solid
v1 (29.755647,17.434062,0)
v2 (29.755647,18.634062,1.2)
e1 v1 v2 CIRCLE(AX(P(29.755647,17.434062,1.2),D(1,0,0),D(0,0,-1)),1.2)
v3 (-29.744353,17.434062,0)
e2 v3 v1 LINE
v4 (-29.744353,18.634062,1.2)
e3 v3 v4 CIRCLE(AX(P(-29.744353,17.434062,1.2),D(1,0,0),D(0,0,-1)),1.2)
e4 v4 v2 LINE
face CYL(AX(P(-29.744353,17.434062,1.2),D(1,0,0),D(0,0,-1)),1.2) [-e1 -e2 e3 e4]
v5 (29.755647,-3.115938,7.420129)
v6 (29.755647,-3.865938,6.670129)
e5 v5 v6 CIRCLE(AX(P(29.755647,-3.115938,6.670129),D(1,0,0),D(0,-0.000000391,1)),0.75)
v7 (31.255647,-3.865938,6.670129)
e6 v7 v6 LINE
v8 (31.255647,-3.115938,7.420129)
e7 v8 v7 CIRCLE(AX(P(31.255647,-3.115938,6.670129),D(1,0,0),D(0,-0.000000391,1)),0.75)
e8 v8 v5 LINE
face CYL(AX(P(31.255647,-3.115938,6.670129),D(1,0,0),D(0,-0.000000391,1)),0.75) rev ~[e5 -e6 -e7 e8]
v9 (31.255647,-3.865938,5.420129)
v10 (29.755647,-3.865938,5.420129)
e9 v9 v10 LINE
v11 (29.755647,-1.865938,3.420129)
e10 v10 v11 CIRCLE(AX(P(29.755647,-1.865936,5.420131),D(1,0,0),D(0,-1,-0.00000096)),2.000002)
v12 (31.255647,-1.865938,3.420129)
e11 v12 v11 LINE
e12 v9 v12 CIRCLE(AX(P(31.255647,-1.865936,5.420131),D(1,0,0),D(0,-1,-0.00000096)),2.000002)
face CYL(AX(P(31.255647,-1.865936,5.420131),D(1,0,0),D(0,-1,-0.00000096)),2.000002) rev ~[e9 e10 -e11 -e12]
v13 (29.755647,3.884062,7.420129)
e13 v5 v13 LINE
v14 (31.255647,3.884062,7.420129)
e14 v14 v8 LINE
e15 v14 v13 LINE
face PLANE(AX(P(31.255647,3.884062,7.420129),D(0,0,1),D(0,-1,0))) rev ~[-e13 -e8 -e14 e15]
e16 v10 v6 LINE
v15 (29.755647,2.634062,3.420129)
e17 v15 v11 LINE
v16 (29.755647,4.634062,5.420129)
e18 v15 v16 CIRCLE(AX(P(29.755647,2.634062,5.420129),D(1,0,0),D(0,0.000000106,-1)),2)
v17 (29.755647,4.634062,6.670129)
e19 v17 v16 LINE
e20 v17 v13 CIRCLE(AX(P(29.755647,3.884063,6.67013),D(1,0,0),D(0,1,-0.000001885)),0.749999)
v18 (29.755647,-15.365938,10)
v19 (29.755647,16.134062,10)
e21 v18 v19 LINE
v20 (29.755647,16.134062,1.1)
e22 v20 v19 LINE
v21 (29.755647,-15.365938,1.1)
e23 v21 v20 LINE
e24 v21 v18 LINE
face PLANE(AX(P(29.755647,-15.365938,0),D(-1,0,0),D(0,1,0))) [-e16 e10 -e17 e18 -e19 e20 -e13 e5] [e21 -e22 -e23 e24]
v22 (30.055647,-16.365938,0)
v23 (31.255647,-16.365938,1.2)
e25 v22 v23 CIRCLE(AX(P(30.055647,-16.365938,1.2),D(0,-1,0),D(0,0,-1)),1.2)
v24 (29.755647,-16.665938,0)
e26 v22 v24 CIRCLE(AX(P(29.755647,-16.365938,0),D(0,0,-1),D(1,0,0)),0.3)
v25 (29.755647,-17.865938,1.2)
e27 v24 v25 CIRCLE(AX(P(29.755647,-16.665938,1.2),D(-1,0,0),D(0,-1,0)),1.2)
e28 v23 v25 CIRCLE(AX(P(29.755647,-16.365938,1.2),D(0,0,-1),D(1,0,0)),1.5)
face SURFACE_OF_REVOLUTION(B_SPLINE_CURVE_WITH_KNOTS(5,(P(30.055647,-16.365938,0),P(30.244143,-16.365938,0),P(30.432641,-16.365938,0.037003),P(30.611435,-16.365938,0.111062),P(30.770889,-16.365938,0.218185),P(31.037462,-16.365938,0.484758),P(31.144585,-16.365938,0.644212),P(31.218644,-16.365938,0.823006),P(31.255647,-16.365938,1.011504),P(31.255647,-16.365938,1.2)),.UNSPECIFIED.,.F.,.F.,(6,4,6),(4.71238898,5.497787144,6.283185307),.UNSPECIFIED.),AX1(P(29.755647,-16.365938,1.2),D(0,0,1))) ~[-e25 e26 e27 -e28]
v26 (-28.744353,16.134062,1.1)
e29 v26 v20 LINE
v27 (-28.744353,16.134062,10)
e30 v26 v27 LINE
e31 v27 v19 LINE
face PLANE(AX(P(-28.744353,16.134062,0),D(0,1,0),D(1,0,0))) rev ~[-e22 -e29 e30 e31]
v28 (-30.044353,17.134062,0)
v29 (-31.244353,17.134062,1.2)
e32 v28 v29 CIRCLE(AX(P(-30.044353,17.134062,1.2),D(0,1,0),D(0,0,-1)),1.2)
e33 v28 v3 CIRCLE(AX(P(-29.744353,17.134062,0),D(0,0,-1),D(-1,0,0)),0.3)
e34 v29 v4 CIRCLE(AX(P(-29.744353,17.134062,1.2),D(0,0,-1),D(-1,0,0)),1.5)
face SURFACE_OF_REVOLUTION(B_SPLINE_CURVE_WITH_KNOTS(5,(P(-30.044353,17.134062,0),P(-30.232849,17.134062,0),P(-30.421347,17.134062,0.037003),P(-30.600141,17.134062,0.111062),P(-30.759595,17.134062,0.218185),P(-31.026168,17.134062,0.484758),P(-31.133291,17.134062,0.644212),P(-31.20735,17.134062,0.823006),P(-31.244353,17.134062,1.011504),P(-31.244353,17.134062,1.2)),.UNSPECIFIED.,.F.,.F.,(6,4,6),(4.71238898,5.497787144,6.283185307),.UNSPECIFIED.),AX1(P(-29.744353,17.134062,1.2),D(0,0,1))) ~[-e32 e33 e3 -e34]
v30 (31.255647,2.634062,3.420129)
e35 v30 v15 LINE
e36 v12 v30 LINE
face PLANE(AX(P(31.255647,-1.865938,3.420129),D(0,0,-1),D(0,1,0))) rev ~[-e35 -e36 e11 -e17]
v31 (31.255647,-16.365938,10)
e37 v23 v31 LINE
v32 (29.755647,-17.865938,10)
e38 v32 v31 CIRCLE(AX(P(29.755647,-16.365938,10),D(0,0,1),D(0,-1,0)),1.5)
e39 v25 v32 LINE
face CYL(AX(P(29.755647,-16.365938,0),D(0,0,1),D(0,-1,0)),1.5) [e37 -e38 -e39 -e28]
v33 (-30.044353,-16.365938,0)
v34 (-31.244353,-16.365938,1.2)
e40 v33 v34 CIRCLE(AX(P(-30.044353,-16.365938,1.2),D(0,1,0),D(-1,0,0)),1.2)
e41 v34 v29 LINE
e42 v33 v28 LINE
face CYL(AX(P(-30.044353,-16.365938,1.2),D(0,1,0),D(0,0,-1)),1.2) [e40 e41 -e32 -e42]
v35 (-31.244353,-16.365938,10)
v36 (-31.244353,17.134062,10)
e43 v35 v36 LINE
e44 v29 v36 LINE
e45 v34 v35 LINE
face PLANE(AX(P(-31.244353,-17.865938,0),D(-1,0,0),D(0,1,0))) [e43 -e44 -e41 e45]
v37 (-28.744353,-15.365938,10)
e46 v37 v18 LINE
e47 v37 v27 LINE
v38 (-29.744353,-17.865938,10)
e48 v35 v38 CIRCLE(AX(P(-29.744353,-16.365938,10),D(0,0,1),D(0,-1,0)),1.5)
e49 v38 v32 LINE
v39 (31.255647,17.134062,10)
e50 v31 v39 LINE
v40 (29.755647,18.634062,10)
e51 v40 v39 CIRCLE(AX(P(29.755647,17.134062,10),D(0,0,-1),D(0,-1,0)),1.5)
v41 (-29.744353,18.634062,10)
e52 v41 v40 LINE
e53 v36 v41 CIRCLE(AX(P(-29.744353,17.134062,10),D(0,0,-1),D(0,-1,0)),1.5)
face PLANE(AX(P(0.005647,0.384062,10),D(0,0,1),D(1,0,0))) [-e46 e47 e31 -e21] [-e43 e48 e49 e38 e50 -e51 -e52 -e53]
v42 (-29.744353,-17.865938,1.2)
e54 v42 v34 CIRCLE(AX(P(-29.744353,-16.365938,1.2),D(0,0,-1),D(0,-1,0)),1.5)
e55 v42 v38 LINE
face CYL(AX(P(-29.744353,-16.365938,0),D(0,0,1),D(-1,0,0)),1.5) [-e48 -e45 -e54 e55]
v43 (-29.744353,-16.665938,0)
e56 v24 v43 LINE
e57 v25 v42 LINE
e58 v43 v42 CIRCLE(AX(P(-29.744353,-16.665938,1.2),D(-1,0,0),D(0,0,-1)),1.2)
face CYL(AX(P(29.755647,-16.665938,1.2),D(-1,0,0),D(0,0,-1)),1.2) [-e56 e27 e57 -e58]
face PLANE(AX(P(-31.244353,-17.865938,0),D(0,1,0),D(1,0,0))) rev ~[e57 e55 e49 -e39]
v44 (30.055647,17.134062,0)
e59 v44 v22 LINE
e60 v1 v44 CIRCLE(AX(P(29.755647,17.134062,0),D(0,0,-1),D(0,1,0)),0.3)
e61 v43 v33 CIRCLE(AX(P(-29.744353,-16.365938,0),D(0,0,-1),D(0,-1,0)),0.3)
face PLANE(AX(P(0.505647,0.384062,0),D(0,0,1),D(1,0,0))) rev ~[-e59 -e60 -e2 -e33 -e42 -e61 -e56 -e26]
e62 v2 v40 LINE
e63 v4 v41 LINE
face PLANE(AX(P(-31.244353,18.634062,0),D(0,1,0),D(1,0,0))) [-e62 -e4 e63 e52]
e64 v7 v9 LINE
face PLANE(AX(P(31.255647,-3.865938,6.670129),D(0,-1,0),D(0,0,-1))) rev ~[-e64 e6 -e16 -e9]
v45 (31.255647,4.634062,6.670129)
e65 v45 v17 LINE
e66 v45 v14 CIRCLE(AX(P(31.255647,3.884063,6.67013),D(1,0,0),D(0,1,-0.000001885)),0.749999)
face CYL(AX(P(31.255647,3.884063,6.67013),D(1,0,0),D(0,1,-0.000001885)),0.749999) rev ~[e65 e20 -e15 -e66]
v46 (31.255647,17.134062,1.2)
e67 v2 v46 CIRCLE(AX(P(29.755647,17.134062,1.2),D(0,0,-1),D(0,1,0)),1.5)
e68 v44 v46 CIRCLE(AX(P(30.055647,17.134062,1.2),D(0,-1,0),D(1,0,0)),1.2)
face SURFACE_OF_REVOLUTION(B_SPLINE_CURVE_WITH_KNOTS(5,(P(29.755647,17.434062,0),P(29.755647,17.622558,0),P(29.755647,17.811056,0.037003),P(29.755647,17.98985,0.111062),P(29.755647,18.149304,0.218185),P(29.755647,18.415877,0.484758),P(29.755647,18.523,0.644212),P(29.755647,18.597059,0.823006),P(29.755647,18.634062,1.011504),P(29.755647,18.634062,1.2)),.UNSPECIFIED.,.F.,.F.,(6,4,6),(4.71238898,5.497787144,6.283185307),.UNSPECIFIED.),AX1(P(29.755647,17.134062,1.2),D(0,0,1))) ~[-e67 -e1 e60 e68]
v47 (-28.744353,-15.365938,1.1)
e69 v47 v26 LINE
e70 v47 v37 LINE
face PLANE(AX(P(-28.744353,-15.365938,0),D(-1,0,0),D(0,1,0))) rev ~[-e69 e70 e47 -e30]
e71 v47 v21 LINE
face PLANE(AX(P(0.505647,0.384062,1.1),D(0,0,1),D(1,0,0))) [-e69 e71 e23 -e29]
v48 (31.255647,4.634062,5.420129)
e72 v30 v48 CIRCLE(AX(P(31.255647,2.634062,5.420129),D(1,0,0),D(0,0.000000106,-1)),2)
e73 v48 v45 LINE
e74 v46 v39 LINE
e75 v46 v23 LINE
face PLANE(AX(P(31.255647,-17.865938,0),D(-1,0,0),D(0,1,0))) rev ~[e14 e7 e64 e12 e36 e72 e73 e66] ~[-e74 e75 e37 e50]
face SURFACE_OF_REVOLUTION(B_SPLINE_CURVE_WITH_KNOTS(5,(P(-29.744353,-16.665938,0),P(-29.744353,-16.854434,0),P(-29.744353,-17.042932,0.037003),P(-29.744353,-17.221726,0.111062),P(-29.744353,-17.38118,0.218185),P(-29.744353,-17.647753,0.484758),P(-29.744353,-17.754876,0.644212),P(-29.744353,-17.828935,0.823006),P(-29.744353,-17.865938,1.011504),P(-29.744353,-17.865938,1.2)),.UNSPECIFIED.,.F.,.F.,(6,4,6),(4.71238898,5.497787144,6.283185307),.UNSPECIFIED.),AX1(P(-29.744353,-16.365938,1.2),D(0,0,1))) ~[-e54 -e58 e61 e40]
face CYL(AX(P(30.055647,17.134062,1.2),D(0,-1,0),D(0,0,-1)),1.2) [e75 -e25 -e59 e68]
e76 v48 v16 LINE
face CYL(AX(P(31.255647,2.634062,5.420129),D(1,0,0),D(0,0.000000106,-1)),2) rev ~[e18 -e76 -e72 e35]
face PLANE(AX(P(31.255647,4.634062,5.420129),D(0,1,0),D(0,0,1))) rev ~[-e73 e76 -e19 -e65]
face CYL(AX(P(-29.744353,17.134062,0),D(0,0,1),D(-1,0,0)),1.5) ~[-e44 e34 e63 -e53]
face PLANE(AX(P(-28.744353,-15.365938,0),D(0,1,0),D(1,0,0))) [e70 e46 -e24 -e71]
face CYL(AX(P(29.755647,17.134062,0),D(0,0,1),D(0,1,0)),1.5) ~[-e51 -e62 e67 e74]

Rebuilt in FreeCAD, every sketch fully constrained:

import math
import FreeCAD as App
import Part
import Sketcher
Q = App.Units.Quantity


def edges_at(feature, points):
    """Names of the edges that pass closest to the given points."""
    edges = feature.Shape.Edges
    near = lambda p: min(range(len(edges)), key=lambda i: edges[i].distToShape(Part.Vertex(*p))[0])
    return sorted({f"Edge{near(p) + 1}" for p in points})


def add_polygon(sketch, points):
    """Adds a closed chain of lines whose ends are joined by coincident constraints."""
    first, n = sketch.GeometryCount, len(points)
    for a, b in zip(points, points[1:] + points[:1]):
        sketch.addGeometry(Part.LineSegment(App.Vector(*a, 0), App.Vector(*b, 0)), False)
    for i in range(n):
        sketch.addConstraint(Sketcher.Constraint("Coincident", first + i, 2, first + (i + 1) % n, 1))

doc = App.newDocument("Part")
body = doc.addObject("PartDesign::Body", "Body")

# Sketch on XY plane
sketch1 = body.newObject("Sketcher::SketchObject", "Sketch")
sketch1.AttachmentSupport = (doc.getObject("XY_Plane"), [""])
sketch1.MapMode = "FlatFace"
add_polygon(sketch1, [(-31, 19), (-31, -18), (31, -18), (31, 19)])  # lines 0-3
add_polygon(sketch1, [(30, -15), (-29, -15), (-29, 16), (30, 16)])  # lines 4-7
sketch1.addConstraint([
    Sketcher.Constraint("Vertical", 0),
    Sketcher.Constraint("Horizontal", 1),
    Sketcher.Constraint("Vertical", 2),
    Sketcher.Constraint("Horizontal", 3),
    Sketcher.Constraint("Horizontal", 4),
    Sketcher.Constraint("Vertical", 5),
    Sketcher.Constraint("Horizontal", 6),
    Sketcher.Constraint("Vertical", 7),
    Sketcher.Constraint("DistanceX", 1, 1, 1, 2, Q("62.5 mm")),
    Sketcher.Constraint("DistanceX", 4, 2, 4, 1, Q("58.5 mm")),
    Sketcher.Constraint("DistanceY", 0, 2, 0, 1, Q("36.5 mm")),
    Sketcher.Constraint("DistanceY", 5, 1, 5, 2, Q("31.5 mm")),
    Sketcher.Constraint("DistanceY", 4, 2, 3, 2, Q("34 mm")),
    Sketcher.Constraint("DistanceX", 4, 2, 1, 2, Q("60 mm")),
    Sketcher.Constraint("DistanceY", 0, 2, -1, 1, Q("17.865938 mm")),
    Sketcher.Constraint("DistanceX", 0, 2, -1, 1, Q("31.244353 mm")),
])
pad1 = body.newObject("PartDesign::Pad", "Pad")
pad1.Profile = sketch1
pad1.Length = 10

# Sketch on XY plane
sketch2 = body.newObject("Sketcher::SketchObject", "Sketch001")
sketch2.AttachmentSupport = (doc.getObject("XY_Plane"), [""])
sketch2.MapMode = "FlatFace"
add_polygon(sketch2, [(-29, 16), (-29, -15), (30, -15), (30, 16)])  # lines 0-3
sketch2.addConstraint([
    Sketcher.Constraint("Vertical", 0),
    Sketcher.Constraint("Horizontal", 1),
    Sketcher.Constraint("Vertical", 2),
    Sketcher.Constraint("Horizontal", 3),
    Sketcher.Constraint("DistanceX", 1, 1, 1, 2, Q("58.5 mm")),
    Sketcher.Constraint("DistanceY", 0, 2, 0, 1, Q("31.5 mm")),
    Sketcher.Constraint("DistanceY", -1, 1, 2, 2, Q("16.134062 mm")),
    Sketcher.Constraint("DistanceX", 0, 2, -1, 1, Q("28.744353 mm")),
])
pad2 = body.newObject("PartDesign::Pad", "Pad001")
pad2.Profile = sketch2
pad2.Length = 1.1
doc.recompute()

fillet = body.newObject("PartDesign::Fillet", "Fillet")
fillet.Base = (pad2, edges_at(pad2, [
    (31.256, -17.866, 5),
    (31.256, 18.634, 5),
    (-31.244, 18.634, 5),
    (-31.244, -17.866, 5),
]))
fillet.Radius = 1.5
doc.recompute()

fillet2 = body.newObject("PartDesign::Fillet", "Fillet001")
fillet2.Base = (fillet, edges_at(fillet, [
    (0.006, 18.634, 0),
    (30.816, 18.195, 0),
    (-30.805, 18.195, 0),
    (31.256, 0.384, 0),
    (-31.244, 0.384, 0),
    (30.816, -17.427, 0),
    (-30.805, -17.427, 0),
    (0.006, -17.866, 0),
]))
fillet2.Radius = 1.2

# Sketch on YZ plane
sketch3 = body.newObject("Sketcher::SketchObject", "Sketch002")
sketch3.AttachmentSupport = (doc.getObject("YZ_Plane"), [""])
sketch3.MapMode = "FlatFace"
sketch3.AttachmentOffset = App.Placement(App.Vector(0, 0, 31.255647), App.Rotation())
sketch3.addGeometry([
    Part.LineSegment(App.Vector(3.9, 7.4, 0), App.Vector(-3.1, 7.4, 0)),  # 0
    Part.ArcOfCircle(Part.Circle(App.Vector(-3.1, 6.7, 0), App.Vector(0, 0, 1), 0.8), math.radians(90), math.radians(180)),  # 1
    Part.LineSegment(App.Vector(-3.9, 6.7, 0), App.Vector(-3.9, 5.4, 0)),  # 2
    Part.ArcOfCircle(Part.Circle(App.Vector(-1.9, 5.4, 0), App.Vector(0, 0, 1), 2), math.radians(-180), math.radians(-90)),  # 3
    Part.LineSegment(App.Vector(-1.9, 3.4, 0), App.Vector(2.6, 3.4, 0)),  # 4
    Part.ArcOfCircle(Part.Circle(App.Vector(2.6, 5.4, 0), App.Vector(0, 0, 1), 2), math.radians(-90), math.radians(0)),  # 5
    Part.LineSegment(App.Vector(4.6, 5.4, 0), App.Vector(4.6, 6.7, 0)),  # 6
    Part.ArcOfCircle(Part.Circle(App.Vector(3.9, 6.7, 0), App.Vector(0, 0, 1), 0.7), math.radians(0), math.radians(90)),  # 7
], False)
sketch3.addConstraint([
    Sketcher.Constraint("Tangent", 0, 2, 1, 1),
    Sketcher.Constraint("Tangent", 1, 2, 2, 1),
    Sketcher.Constraint("Tangent", 2, 2, 3, 1),
    Sketcher.Constraint("Tangent", 3, 2, 4, 1),
    Sketcher.Constraint("Tangent", 4, 2, 5, 1),
    Sketcher.Constraint("Tangent", 5, 2, 6, 1),
    Sketcher.Constraint("Tangent", 6, 2, 7, 1),
    Sketcher.Constraint("Tangent", 7, 2, 0, 1),
    Sketcher.Constraint("Horizontal", 0),
    Sketcher.Constraint("Vertical", 2),
    Sketcher.Constraint("Horizontal", 4),
    Sketcher.Constraint("Vertical", 6),
    Sketcher.Constraint("Equal", 3, 5),
    Sketcher.Constraint("Equal", 1, 7),
    Sketcher.Constraint("Radius", 3, Q("2.000002 mm")),
    Sketcher.Constraint("DistanceX", 0, 2, 0, 1, Q("7 mm")),
    Sketcher.Constraint("Radius", 1, Q("0.75 mm")),
    Sketcher.Constraint("DistanceY", 3, 3, 0, 2, Q("1.999998 mm")),
    Sketcher.Constraint("DistanceY", -1, 1, 1, 3, Q("6.670129 mm")),
    Sketcher.Constraint("DistanceX", -1, 1, 5, 3, Q("2.634062 mm")),
])
pocket1 = body.newObject("PartDesign::Pocket", "Pocket")
pocket1.Profile = sketch3
pocket1.Length = 3

doc.recompute()
